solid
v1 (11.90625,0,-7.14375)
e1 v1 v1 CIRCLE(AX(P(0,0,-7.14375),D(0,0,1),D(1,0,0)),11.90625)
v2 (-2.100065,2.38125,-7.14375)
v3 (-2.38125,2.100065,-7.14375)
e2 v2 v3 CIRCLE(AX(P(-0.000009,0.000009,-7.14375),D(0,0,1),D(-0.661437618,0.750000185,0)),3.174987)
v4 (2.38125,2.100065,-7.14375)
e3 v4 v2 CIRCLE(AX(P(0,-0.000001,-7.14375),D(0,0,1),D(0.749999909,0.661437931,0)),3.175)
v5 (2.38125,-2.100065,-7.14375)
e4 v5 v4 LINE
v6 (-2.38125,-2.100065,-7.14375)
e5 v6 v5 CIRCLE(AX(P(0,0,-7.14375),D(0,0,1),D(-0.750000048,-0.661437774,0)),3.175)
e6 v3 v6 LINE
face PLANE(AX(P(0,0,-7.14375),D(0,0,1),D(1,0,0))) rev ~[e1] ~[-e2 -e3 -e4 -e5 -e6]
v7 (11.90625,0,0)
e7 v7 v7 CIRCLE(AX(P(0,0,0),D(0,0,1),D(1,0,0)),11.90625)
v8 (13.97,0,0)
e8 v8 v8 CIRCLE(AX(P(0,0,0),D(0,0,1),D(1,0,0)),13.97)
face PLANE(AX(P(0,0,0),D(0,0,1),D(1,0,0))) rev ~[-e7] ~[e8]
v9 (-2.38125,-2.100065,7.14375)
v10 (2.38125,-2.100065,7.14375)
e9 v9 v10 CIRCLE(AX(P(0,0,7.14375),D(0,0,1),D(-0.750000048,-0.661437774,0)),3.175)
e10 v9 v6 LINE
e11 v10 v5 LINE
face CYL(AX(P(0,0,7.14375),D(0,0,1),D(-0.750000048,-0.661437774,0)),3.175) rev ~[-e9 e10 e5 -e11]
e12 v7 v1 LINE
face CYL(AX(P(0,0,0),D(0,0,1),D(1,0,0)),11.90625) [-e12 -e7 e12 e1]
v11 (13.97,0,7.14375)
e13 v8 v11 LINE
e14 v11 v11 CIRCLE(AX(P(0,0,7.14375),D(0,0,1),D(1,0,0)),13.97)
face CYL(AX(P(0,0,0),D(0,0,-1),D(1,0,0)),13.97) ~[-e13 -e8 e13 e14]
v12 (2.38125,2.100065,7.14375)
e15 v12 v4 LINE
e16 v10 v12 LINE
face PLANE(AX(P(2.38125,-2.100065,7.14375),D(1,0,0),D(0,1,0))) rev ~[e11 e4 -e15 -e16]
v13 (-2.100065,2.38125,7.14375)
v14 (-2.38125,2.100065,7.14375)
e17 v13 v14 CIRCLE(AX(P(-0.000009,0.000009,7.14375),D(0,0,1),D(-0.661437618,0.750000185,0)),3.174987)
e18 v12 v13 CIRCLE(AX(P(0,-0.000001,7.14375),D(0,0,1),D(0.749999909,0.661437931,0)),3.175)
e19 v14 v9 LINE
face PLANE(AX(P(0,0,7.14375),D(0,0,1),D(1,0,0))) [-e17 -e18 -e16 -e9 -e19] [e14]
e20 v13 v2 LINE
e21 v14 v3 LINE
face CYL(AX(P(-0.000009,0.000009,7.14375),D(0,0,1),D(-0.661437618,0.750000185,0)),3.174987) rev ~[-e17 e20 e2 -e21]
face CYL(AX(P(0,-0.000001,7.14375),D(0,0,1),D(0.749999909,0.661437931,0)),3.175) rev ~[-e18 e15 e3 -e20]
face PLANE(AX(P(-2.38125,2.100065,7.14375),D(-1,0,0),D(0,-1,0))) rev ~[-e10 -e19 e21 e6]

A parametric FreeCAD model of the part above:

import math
import FreeCAD as App
import Part
import Sketcher
from FreeCAD import Vector
Q = App.Units.Quantity

doc = App.newDocument("Part")
body = doc.addObject("PartDesign::Body", "Body")

sketch1 = body.newObject("Sketcher::SketchObject", "Sketch")
sketch1.AttachmentSupport = (doc.getObject("XY_Plane"), [""])
sketch1.MapMode = "FlatFace"
sketch1.addGeometry(Part.Circle(Vector(0, 0, 0), Vector(0, 0, 1), 11.90625), False)
sketch1.addConstraint(Sketcher.Constraint("Coincident", 0, 3, -1, 1))
sketch1.addConstraint(Sketcher.Constraint("Diameter", 0, Q("0.9375 in")))
pad1 = body.newObject("PartDesign::Pad", "Pad")
pad1.Profile = sketch1
pad1.Length = Q("0.28125 in")
pad1.Reversed = True

sketch2 = body.newObject("Sketcher::SketchObject", "Sketch001")
sketch2.AttachmentSupport = (doc.getObject("XY_Plane"), [""])
sketch2.MapMode = "FlatFace"
sketch2.addGeometry(Part.Circle(Vector(0, 0, 0), Vector(0, 0, 1), 13.97), False)
sketch2.addConstraint(Sketcher.Constraint("Coincident", 0, 3, -1, 1))
sketch2.addConstraint(Sketcher.Constraint("Diameter", 0, Q("1.1 in")))
pad2 = body.newObject("PartDesign::Pad", "Pad001")
pad2.Profile = sketch2
pad2.Length = Q("0.28125 in")

sketch3 = body.newObject("Sketcher::SketchObject", "Sketch002")
sketch3.AttachmentSupport = (doc.getObject("XY_Plane"), [""])
sketch3.MapMode = "FlatFace"
sketch3.AttachmentOffset = App.Placement(Vector(0, 0, 0.28125 * 25.4), App.Rotation())
sketch3.addGeometry(Part.ArcOfCircle(Part.Circle(Vector(0, -0.000001, 0), Vector(0, 0, 1), 3.175), math.radians(41.40963), math.radians(131.409611)), False)
sketch3.addGeometry(Part.ArcOfCircle(Part.Circle(Vector(-0.000009, 0.000009, 0), Vector(0, 0, 1), 3.174987), math.radians(131.409606), math.radians(138.590394)), False)
sketch3.addGeometry(Part.LineSegment(Vector(-2.38125, 2.100065, 0), Vector(-2.38125, -2.100065, 0)), False)
sketch3.addGeometry(Part.ArcOfCircle(Part.Circle(Vector(0, 0, 0), Vector(0, 0, 1), 3.175), math.radians(-138.590382), math.radians(-41.409618)), False)
sketch3.addGeometry(Part.LineSegment(Vector(2.38125, -2.100065, 0), Vector(2.38125, 2.100065, 0)), False)
sketch3.addConstraint(Sketcher.Constraint("Tangent", 0, 2, 1, 1))
sketch3.addConstraint(Sketcher.Constraint("Coincident", 1, 2, 2, 1))
sketch3.addConstraint(Sketcher.Constraint("Coincident", 2, 2, 3, 1))
sketch3.addConstraint(Sketcher.Constraint("Coincident", 3, 2, 4, 1))
sketch3.addConstraint(Sketcher.Constraint("Coincident", 4, 2, 0, 1))
sketch3.addConstraint(Sketcher.Constraint("Vertical", 2))
sketch3.addConstraint(Sketcher.Constraint("Vertical", 4))
sketch3.addConstraint(Sketcher.Constraint("Coincident", 0, 3, -1, 1))
sketch3.addConstraint(Sketcher.Constraint("Coincident", 3, 3, -1, 1))
sketch3.addConstraint(Sketcher.Constraint("Equal", 0, 3))
sketch3.addConstraint(Sketcher.Constraint("Symmetric", 1, 2, 3, 2, -1, 1))
sketch3.addConstraint(Sketcher.Constraint("Radius", 0, Q("0.125 in")))
sketch3.addConstraint(Sketcher.Constraint("DistanceY", -1, 1, 0, 2, Q("0.09375 in")))
sketch3.addConstraint(Sketcher.Constraint("DistanceX", 1, 2, -1, 1, Q("0.09375 in")))
pocket1 = body.newObject("PartDesign::Pocket", "Pocket")
pocket1.Profile = sketch3
pocket1.Length = Q("1 in")

doc.recompute()
